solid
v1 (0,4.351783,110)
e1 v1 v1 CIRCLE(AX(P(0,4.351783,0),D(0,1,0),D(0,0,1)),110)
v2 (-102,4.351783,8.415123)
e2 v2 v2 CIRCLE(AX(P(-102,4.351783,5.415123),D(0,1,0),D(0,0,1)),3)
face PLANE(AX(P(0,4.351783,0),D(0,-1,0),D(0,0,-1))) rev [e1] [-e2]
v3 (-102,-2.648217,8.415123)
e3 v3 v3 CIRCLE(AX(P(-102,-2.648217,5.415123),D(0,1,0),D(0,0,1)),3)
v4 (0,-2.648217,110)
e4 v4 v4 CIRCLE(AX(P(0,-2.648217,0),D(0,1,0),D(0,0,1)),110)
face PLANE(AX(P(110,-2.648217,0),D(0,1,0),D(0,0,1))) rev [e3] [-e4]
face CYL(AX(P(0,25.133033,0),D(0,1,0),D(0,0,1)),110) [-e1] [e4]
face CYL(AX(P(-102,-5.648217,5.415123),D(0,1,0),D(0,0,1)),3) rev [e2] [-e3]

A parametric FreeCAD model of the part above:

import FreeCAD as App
import Part
import Sketcher
Q = App.Units.Quantity

doc = App.newDocument("Part")
body = doc.addObject("PartDesign::Body", "Body")

sketch1 = body.newObject("Sketcher::SketchObject", "Sketch")
sketch1.AttachmentSupport = (doc.getObject("XY_Plane"), [""])
sketch1.MapMode = "FlatFace"
sketch1.addGeometry([
    Part.LineSegment(App.Vector(0, 4, 0), App.Vector(0, -3, 0)),
    Part.LineSegment(App.Vector(0, -3, 0), App.Vector(110, -3, 0)),
    Part.LineSegment(App.Vector(110, -3, 0), App.Vector(110, 4, 0)),
    Part.LineSegment(App.Vector(110, 4, 0), App.Vector(0, 4, 0)),
], False)
sketch1.addConstraint([
    Sketcher.Constraint("Coincident", 0, 2, 1, 1),
    Sketcher.Constraint("Coincident", 1, 2, 2, 1),
    Sketcher.Constraint("Coincident", 2, 2, 3, 1),
    Sketcher.Constraint("Coincident", 3, 2, 0, 1),
    Sketcher.Constraint("Vertical", 0),
    Sketcher.Constraint("Horizontal", 1),
    Sketcher.Constraint("Vertical", 2),
    Sketcher.Constraint("Horizontal", 3),
    Sketcher.Constraint("PointOnObject", 0, 2, -2),
    Sketcher.Constraint("DistanceX", 1, 1, 1, 2, Q("110 mm")),
    Sketcher.Constraint("DistanceY", 0, 2, 0, 1, Q("7 mm")),
    Sketcher.Constraint("DistanceY", 0, 2, -1, 1, Q("2.648217 mm")),
])
revolution = body.newObject("PartDesign::Revolution", "Revolution")
revolution.Profile = sketch1
revolution.ReferenceAxis = (sketch1, ["V_Axis"])
revolution.Angle = 360

sketch2 = body.newObject("Sketcher::SketchObject", "Sketch001")
sketch2.AttachmentSupport = (doc.getObject("XZ_Plane"), [""])
sketch2.MapMode = "FlatFace"
sketch2.AttachmentOffset = App.Placement(App.Vector(0, 0, -4.351783), App.Rotation())
sketch2.addGeometry(Part.Circle(App.Vector(-102, 5.4, 0), App.Vector(0, 0, 1), 3), False)
sketch2.addConstraint([
    Sketcher.Constraint("Diameter", 0, Q("6 mm")),
    Sketcher.Constraint("DistanceX", 0, 3, -1, 1, Q("102 mm")),
    Sketcher.Constraint("DistanceY", -1, 1, 0, 3, Q("5.415123 mm")),
])
pocket1 = body.newObject("PartDesign::Pocket", "Pocket")
pocket1.Profile = sketch2
pocket1.Length = 10
pocket1.Reversed = True

doc.recompute()
